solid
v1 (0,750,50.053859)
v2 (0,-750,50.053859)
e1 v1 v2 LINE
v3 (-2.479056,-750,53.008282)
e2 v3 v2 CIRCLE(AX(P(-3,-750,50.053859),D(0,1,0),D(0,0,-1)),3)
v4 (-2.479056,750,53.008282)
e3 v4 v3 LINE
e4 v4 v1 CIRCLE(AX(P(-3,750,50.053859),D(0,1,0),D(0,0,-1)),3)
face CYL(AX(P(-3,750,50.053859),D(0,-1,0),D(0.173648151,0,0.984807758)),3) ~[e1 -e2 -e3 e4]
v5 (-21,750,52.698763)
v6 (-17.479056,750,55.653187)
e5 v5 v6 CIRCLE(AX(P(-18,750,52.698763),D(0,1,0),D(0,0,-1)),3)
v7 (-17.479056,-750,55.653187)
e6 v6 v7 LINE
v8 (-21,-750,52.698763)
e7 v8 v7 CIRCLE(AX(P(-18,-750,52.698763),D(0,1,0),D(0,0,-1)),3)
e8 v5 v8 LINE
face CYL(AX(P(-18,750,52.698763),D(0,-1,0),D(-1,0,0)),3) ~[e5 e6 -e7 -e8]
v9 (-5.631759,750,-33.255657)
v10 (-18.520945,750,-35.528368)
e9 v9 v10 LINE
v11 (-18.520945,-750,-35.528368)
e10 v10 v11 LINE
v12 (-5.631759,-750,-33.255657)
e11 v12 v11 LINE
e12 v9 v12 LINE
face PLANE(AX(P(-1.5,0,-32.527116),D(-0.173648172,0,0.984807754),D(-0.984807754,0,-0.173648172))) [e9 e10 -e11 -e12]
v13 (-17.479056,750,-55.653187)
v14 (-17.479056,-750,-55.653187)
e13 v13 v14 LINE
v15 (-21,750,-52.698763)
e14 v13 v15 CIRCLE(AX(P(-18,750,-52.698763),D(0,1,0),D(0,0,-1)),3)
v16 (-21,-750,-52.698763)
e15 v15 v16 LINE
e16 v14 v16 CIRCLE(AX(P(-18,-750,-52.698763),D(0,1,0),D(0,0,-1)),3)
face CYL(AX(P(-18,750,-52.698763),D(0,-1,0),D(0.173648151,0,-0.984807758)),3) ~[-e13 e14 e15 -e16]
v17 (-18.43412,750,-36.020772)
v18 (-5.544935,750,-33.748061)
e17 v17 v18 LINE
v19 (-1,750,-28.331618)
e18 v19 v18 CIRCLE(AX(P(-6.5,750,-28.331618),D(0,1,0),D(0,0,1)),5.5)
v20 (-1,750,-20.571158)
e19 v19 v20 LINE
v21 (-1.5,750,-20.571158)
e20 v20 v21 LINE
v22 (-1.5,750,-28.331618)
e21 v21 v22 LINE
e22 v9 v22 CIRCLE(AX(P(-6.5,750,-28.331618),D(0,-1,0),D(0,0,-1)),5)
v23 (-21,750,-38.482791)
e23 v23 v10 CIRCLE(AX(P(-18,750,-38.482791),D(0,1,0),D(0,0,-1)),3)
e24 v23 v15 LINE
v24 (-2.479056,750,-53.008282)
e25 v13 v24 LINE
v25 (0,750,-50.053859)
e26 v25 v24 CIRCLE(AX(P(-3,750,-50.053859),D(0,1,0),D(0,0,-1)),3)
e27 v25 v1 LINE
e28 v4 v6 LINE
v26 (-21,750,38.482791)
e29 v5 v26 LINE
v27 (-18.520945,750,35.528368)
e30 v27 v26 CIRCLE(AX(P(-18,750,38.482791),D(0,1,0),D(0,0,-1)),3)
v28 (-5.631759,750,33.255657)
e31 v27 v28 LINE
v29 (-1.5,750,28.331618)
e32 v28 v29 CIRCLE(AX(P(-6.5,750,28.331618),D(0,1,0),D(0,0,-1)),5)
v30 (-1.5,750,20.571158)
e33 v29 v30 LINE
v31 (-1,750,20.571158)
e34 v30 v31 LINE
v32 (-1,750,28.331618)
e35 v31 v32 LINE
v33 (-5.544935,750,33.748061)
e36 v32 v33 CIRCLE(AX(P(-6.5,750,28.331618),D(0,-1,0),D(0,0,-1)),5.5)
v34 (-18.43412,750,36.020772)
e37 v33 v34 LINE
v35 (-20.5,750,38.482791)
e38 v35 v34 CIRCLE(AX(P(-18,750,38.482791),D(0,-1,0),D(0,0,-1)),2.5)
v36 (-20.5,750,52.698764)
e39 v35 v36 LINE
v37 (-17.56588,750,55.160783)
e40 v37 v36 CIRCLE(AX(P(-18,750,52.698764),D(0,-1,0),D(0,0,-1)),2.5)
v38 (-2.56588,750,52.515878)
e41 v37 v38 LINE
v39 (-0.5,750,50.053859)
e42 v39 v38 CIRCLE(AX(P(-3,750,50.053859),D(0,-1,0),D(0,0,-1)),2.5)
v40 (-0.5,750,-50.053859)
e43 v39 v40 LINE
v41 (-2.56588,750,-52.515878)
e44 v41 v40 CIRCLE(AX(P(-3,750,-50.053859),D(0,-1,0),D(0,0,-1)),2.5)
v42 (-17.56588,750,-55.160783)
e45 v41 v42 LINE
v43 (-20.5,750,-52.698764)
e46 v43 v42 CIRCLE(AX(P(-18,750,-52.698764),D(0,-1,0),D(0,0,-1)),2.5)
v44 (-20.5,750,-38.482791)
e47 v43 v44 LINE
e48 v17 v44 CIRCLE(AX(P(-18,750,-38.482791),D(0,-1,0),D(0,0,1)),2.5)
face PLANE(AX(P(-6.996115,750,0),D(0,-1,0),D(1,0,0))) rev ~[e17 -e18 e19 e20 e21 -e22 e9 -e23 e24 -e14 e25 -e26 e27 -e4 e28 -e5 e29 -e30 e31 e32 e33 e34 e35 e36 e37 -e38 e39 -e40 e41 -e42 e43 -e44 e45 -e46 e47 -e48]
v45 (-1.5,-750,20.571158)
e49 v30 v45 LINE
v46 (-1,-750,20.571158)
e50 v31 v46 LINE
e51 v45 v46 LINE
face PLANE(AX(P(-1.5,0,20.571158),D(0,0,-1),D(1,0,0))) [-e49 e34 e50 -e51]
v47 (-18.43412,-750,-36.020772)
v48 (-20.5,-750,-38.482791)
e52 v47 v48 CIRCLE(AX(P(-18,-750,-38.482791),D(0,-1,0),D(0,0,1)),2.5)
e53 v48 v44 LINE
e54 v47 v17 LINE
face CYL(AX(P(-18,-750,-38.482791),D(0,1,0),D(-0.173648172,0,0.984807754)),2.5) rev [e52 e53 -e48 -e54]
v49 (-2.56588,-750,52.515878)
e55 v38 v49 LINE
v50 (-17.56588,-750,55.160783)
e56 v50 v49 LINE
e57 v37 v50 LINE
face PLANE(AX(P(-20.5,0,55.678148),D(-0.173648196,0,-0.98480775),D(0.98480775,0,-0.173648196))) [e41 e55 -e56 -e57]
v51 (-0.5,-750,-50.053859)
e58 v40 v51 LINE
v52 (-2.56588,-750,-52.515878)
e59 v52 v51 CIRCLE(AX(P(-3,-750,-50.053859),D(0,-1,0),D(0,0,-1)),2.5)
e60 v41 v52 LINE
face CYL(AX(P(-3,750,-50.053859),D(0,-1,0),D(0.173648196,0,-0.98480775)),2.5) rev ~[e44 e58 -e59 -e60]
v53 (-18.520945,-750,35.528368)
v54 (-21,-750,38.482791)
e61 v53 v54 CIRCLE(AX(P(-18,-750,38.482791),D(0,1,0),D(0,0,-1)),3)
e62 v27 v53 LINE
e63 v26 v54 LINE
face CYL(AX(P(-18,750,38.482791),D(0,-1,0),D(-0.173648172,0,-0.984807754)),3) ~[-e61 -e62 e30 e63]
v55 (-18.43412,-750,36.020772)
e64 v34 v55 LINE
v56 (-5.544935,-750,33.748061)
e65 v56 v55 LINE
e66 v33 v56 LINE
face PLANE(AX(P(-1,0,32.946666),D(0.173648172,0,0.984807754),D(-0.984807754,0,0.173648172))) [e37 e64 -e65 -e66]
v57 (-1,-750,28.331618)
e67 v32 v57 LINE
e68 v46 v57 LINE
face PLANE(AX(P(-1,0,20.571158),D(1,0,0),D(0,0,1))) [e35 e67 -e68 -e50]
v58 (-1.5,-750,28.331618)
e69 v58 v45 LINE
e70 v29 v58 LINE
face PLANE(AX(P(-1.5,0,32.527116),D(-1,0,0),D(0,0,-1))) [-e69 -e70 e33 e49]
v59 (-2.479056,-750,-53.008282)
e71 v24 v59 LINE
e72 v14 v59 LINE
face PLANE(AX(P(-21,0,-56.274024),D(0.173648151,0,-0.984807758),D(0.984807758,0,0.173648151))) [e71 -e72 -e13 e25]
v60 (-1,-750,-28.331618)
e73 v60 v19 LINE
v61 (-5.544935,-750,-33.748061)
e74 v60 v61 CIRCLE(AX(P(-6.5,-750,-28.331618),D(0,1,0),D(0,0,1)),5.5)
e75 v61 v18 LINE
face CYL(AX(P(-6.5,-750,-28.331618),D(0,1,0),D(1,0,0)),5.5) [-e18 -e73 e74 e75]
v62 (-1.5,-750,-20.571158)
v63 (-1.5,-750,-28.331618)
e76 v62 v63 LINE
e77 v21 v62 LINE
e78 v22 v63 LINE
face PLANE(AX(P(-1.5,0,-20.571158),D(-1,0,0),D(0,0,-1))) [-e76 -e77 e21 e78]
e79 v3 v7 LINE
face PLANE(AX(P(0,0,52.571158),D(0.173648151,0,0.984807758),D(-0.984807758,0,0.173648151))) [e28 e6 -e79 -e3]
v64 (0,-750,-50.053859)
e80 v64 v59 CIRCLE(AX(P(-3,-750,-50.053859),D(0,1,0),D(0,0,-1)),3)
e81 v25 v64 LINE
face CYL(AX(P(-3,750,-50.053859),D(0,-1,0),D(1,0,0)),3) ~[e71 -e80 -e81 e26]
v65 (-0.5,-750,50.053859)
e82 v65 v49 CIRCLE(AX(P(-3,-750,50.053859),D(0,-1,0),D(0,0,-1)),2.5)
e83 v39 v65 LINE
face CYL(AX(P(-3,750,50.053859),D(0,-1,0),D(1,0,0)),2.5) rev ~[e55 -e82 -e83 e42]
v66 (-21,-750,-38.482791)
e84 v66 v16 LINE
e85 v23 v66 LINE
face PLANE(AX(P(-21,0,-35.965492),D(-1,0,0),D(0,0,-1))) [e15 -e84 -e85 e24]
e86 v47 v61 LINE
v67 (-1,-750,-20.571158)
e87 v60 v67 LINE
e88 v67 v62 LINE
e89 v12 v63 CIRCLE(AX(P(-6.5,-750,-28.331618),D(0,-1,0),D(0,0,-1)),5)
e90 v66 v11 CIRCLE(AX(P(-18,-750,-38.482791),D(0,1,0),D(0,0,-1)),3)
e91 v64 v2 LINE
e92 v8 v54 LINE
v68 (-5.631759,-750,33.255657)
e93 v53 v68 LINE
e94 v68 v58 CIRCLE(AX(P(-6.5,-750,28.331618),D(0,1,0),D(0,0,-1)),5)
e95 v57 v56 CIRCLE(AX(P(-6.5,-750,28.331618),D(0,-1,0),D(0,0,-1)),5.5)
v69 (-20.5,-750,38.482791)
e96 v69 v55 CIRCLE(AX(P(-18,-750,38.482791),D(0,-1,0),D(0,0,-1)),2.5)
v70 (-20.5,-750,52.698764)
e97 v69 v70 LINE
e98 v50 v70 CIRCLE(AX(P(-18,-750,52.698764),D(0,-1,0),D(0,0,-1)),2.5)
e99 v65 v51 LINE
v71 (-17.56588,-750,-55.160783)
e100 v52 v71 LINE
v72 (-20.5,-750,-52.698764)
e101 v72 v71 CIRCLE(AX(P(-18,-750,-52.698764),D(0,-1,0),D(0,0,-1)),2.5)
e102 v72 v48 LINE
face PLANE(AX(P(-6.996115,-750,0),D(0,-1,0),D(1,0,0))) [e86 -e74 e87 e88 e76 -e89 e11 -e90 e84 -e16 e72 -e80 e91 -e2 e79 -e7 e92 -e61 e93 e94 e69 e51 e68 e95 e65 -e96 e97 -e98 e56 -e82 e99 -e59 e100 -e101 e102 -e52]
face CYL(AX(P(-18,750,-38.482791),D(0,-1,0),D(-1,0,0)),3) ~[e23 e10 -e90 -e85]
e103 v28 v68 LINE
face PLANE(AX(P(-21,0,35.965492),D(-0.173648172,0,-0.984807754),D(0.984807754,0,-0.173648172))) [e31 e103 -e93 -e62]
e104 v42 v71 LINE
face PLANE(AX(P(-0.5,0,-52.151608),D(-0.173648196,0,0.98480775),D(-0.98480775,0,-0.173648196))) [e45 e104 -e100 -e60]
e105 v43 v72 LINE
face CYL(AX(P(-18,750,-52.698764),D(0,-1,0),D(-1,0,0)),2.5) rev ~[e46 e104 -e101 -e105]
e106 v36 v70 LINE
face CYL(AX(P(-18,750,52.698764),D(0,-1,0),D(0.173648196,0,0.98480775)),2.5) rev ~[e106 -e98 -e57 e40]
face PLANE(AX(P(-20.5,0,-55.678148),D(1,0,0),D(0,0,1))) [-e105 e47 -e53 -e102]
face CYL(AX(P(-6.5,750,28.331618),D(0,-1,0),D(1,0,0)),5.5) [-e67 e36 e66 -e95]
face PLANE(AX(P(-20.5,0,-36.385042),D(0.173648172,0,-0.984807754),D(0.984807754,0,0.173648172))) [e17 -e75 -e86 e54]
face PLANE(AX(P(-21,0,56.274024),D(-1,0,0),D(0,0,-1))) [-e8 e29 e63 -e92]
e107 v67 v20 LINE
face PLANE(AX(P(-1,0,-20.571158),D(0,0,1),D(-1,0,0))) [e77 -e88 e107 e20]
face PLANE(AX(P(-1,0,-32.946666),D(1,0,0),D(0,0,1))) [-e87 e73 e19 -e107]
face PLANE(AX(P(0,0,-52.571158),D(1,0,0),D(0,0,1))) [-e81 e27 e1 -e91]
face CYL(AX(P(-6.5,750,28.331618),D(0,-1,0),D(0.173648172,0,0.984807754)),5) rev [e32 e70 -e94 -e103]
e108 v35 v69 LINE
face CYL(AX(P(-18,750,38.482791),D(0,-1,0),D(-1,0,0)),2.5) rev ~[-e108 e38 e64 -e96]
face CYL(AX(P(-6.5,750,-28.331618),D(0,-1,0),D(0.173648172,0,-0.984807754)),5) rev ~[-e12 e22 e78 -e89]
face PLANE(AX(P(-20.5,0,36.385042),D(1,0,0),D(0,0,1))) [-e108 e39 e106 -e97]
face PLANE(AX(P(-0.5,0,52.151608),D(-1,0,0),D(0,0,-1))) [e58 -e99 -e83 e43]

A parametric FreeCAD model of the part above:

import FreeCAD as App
import Part
import Sketcher

V = App.Vector
Q = App.Units.Quantity


def edges_at(feature, points):
    """Names of the edges that pass closest to the given points."""
    edges = feature.Shape.Edges
    near = lambda p: min(range(len(edges)), key=lambda i: edges[i].distToShape(Part.Vertex(*p))[0])
    return sorted({f"Edge{near(p) + 1}" for p in points})


def add_polygon(sketch, points):
    """Adds a closed chain of lines whose ends are joined by coincident constraints."""
    first, n = sketch.GeometryCount, len(points)
    for a, b in zip(points, points[1:] + points[:1]):
        sketch.addGeometry(Part.LineSegment(App.Vector(*a, 0), App.Vector(*b, 0)), False)
    for i in range(n):
        sketch.addConstraint(Sketcher.Constraint("Coincident", first + i, 2, first + (i + 1) % n, 1))

doc = App.newDocument("Part")
params = doc.addObject("Spreadsheet::Sheet", "Params")
for row, (alias, value) in enumerate([
    ("sketch1_width", "0.5 mm"),
    ("pad1_length", "1500 mm"),
    ("fillet_radius", "2.5 mm"),
    ("fillet2_radius", "3 mm"),
    ("fillet3_radius", "5 mm"),
    ("fillet4_radius", "5.5 mm"),
], start=1):
    params.set(f"A{row}", alias)
    params.set(f"B{row}", "=" + value)
    params.setAlias(f"B{row}", alias)

body = doc.addObject("PartDesign::Body", "Body")

sketch1 = body.newObject("Sketcher::SketchObject", "Sketch")
sketch1.AttachmentSupport = (doc.getObject("XZ_Plane"), [""])
sketch1.MapMode = "FlatFace"
add_polygon(sketch1, [(-1, -20.571158), (-1.5, -20.571158), (-1.5, -32.527116), (-21, -35.965492), (-21, -56.274024), (0, -52.571158), (0, 52.571158), (-21, 56.274024), (-21, 35.965492), (-1.5, 32.527116), (-1.5, 20.571158), (-1, 20.571158), (-1, 32.946666), (-20.5, 36.385042), (-20.5, 55.678148), (-0.5, 52.151608), (-0.5, -52.151608), (-20.5, -55.678148), (-20.5, -36.385042), (-1, -32.946666)])
sketch1.addConstraint(Sketcher.Constraint("Horizontal", 0))
sketch1.addConstraint(Sketcher.Constraint("Vertical", 1))
sketch1.addConstraint(Sketcher.Constraint("Vertical", 3))
sketch1.addConstraint(Sketcher.Constraint("Vertical", 5))
sketch1.addConstraint(Sketcher.Constraint("Vertical", 7))
sketch1.addConstraint(Sketcher.Constraint("Vertical", 9))
sketch1.addConstraint(Sketcher.Constraint("Horizontal", 10))
sketch1.addConstraint(Sketcher.Constraint("Vertical", 11))
sketch1.addConstraint(Sketcher.Constraint("Vertical", 13))
sketch1.addConstraint(Sketcher.Constraint("Vertical", 15))
sketch1.addConstraint(Sketcher.Constraint("Vertical", 17))
sketch1.addConstraint(Sketcher.Constraint("Vertical", 19))
sketch1.addConstraint(Sketcher.Constraint("Symmetric", 4, 2, 5, 2, -1, 1))
sketch1.addConstraint(Sketcher.Constraint("Symmetric", 3, 2, 6, 2, -1))
sketch1.addConstraint(Sketcher.Constraint("Symmetric", 1, 2, 8, 2, -1))
sketch1.addConstraint(Sketcher.Constraint("Symmetric", 13, 2, 16, 2, -1))
sketch1.addConstraint(Sketcher.Constraint("Symmetric", 11, 2, 18, 2, -1))
sketch1.addConstraint(Sketcher.Constraint("Parallel", 2, 4))
sketch1.addConstraint(Sketcher.Constraint("Parallel", 6, 8))
sketch1.addConstraint(Sketcher.Constraint("Parallel", 8, 12))
sketch1.addConstraint(Sketcher.Constraint("Parallel", 12, 14))
sketch1.addConstraint(Sketcher.Constraint("Parallel", 4, 16))
sketch1.addConstraint(Sketcher.Constraint("Parallel", 16, 18))
sketch1.addConstraint(Sketcher.Constraint("Equal", 1, 9))
sketch1.addConstraint(Sketcher.Constraint("Equal", 8, 12))
sketch1.addConstraint(Sketcher.Constraint("Angle", 2, Q("-170 deg")))
sketch1.addConstraint(Sketcher.Constraint("DistanceX", 0, 2, 0, 1, 0.5))
sketch1.addConstraint(Sketcher.Constraint("DistanceX", 2, 2, -1, 1, 21.0))
sketch1.addConstraint(Sketcher.Constraint("DistanceX", 10, 2, -1, 1, 1.0))
sketch1.addConstraint(Sketcher.Constraint("DistanceY", 4, 2, 0, 2, 32.0))
sketch1.addConstraint(Sketcher.Constraint("DistanceX", 8, 2, 14, 2, 1.0))
sketch1.addConstraint(Sketcher.Constraint("DistanceY", 3, 2, 3, 1, 20.308532))
sketch1.addConstraint(Sketcher.Constraint("DistanceY", 5, 1, 5, 2, 105.142316))
sketch1.addConstraint(Sketcher.Constraint("DistanceY", 11, 1, 11, 2, 12.375508))
sketch1.addConstraint(Sketcher.Constraint("DistanceY", 13, 1, 13, 2, 19.293106))
sketch1.setExpression("Constraints[46]", "Params.sketch1_width")
pad1 = body.newObject("PartDesign::Pad", "Pad")
pad1.Profile = sketch1
pad1.setExpression("Length", "Params.pad1_length")
pad1.Midplane = True
doc.recompute()

fillet = body.newObject("PartDesign::Fillet", "Fillet")
fillet.Base = (pad1, edges_at(pad1, [
    (-0.5, 0, 52.152),
    (-20.5, 0, 36.385),
    (-20.5, 0, 55.678),
    (-20.5, 0, -36.385),
    (-0.5, 0, -52.152),
    (-20.5, 0, -55.678),
]))
fillet.setExpression("Radius", "Params.fillet_radius")
doc.recompute()

fillet2 = body.newObject("PartDesign::Fillet", "Fillet001")
fillet2.Base = (fillet, edges_at(fillet, [
    (0, 0, 52.571),
    (-21, 0, 35.965),
    (-21, 0, 56.274),
    (-21, 0, -35.965),
    (-21, 0, -56.274),
    (0, 0, -52.571),
]))
fillet2.setExpression("Radius", "Params.fillet2_radius")
doc.recompute()

fillet3 = body.newObject("PartDesign::Fillet", "Fillet002")
fillet3.Base = (fillet2, edges_at(fillet2, [(-1.5, 0, 32.527), (-1.5, 0, -32.527)]))
fillet3.setExpression("Radius", "Params.fillet3_radius")
doc.recompute()

fillet4 = body.newObject("PartDesign::Fillet", "Fillet003")
fillet4.Base = (fillet3, edges_at(fillet3, [(-1, 0, -32.947), (-1, 0, 32.947)]))
fillet4.setExpression("Radius", "Params.fillet4_radius")

doc.recompute()
